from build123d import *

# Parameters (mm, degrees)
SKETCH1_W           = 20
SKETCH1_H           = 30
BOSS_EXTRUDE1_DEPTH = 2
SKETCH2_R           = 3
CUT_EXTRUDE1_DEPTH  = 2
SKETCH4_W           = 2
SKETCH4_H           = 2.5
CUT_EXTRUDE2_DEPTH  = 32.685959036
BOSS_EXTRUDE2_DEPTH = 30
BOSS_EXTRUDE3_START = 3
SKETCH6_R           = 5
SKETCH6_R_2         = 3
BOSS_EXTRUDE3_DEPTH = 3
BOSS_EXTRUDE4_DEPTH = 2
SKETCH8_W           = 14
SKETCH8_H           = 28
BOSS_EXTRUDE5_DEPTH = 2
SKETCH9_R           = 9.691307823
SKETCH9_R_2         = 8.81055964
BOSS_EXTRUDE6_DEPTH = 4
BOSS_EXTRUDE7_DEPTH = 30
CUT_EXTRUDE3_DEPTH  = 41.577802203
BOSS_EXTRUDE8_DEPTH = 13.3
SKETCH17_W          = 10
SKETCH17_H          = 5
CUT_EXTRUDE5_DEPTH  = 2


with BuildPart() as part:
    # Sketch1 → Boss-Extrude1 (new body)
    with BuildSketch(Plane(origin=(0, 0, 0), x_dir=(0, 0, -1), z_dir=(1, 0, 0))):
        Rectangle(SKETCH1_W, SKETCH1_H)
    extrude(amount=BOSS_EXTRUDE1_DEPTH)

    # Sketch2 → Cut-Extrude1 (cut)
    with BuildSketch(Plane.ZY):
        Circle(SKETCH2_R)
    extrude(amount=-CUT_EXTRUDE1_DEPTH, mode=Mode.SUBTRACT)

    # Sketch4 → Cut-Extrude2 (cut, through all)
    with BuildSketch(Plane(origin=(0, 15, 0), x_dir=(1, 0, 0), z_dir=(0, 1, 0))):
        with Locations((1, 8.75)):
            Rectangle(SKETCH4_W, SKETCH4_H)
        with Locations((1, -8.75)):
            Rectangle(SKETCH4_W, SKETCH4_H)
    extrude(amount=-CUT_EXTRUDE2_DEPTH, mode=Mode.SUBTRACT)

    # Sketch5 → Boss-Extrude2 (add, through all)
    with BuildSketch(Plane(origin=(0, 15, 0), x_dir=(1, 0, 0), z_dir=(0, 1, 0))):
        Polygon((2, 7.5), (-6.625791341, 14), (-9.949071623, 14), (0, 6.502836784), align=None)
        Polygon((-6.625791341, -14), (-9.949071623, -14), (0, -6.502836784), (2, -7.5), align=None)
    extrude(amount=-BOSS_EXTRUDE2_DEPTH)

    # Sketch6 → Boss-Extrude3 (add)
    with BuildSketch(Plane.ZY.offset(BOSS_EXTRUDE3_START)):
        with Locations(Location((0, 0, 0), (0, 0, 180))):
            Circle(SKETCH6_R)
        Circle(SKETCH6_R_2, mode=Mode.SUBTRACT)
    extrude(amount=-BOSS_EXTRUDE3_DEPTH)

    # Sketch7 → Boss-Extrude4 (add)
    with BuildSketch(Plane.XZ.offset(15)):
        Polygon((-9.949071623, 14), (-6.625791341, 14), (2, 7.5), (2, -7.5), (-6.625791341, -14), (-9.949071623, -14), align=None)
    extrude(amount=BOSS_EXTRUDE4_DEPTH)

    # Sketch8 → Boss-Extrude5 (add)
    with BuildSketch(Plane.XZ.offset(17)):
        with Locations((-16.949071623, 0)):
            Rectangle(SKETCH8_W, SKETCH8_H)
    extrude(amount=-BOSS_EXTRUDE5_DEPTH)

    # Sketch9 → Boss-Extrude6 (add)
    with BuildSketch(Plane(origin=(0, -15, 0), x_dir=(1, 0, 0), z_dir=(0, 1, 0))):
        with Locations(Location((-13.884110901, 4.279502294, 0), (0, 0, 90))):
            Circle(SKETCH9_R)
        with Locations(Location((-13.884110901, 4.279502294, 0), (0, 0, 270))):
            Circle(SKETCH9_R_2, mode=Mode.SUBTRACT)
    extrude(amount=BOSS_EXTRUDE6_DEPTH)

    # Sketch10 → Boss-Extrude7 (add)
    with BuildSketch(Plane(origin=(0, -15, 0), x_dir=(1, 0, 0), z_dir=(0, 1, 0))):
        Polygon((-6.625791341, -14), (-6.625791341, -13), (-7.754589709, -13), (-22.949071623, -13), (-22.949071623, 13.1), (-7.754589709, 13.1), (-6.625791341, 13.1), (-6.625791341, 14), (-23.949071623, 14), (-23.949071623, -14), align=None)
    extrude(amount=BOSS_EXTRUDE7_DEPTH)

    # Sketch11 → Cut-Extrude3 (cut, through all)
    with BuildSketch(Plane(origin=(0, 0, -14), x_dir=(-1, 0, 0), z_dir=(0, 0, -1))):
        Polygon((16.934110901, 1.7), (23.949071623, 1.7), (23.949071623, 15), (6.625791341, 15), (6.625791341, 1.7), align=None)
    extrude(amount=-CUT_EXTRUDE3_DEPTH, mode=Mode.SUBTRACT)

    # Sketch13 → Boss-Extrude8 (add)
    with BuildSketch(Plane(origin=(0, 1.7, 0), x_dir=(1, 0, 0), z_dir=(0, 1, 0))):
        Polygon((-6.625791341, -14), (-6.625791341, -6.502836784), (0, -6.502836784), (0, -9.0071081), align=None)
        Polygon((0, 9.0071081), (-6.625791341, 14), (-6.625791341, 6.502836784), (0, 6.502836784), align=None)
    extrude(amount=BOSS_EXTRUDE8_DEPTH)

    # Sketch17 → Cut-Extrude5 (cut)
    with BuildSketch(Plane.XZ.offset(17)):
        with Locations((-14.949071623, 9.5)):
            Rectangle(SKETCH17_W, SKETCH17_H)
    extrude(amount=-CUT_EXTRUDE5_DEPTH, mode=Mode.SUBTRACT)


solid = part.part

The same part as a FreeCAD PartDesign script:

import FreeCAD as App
import Part
import Sketcher
from FreeCAD import Vector
Q = App.Units.Quantity


def add_polygon(sketch, points):
    """Adds a closed chain of lines whose ends are joined by coincident constraints."""
    first, n = sketch.GeometryCount, len(points)
    for a, b in zip(points, points[1:] + points[:1]):
        sketch.addGeometry(Part.LineSegment(App.Vector(*a, 0), App.Vector(*b, 0)), False)
    for i in range(n):
        sketch.addConstraint(Sketcher.Constraint("Coincident", first + i, 2, first + (i + 1) % n, 1))

doc = App.newDocument("Part")
body = doc.addObject("PartDesign::Body", "Body")

sketch1 = body.newObject("Sketcher::SketchObject", "Sketch")
sketch1.AttachmentSupport = (doc.getObject("YZ_Plane"), [""])
sketch1.MapMode = "FlatFace"
add_polygon(sketch1, [(15, 10), (-15, 10), (-15, -10), (15, -10)])
sketch1.addConstraint([
    Sketcher.Constraint("Horizontal", 0),
    Sketcher.Constraint("Vertical", 1),
    Sketcher.Constraint("Horizontal", 2),
    Sketcher.Constraint("Vertical", 3),
    Sketcher.Constraint("Symmetric", 0, 2, 2, 2, -1, 1),
    Sketcher.Constraint("DistanceX", 0, 2, 0, 1, 30.0),
    Sketcher.Constraint("DistanceY", 1, 2, 1, 1, 20.0),
])
pad1 = body.newObject("PartDesign::Pad", "Pad")
pad1.Profile = sketch1
pad1.Length = 2

sketch2 = body.newObject("Sketcher::SketchObject", "Sketch001")
sketch2.AttachmentSupport = (doc.getObject("YZ_Plane"), [""])
sketch2.MapMode = "FlatFace"
sketch2.addGeometry(Part.Circle(Vector(0, 0, 0), Vector(0, 0, 1), 3), False)
sketch2.addConstraint([
    Sketcher.Constraint("Coincident", 0, 3, -1, 1),
    Sketcher.Constraint("Diameter", 0, 6.0),
])
pocket1 = body.newObject("PartDesign::Pocket", "Pocket")
pocket1.Profile = sketch2
pocket1.Length = 2
pocket1.Reversed = True

sketch3 = body.newObject("Sketcher::SketchObject", "Sketch002")
sketch3.AttachmentSupport = (doc.getObject("XZ_Plane"), [""])
sketch3.MapMode = "FlatFace"
sketch3.AttachmentOffset = App.Placement(Vector(0, 0, -15), App.Rotation())
add_polygon(sketch3, [(0, -10), (0, -7.5), (2, -7.5), (2, -10)])
add_polygon(sketch3, [(0, 7.5), (0, 10), (2, 10), (2, 7.5)])
sketch3.addConstraint([
    Sketcher.Constraint("Vertical", 0),
    Sketcher.Constraint("Horizontal", 1),
    Sketcher.Constraint("Vertical", 2),
    Sketcher.Constraint("Horizontal", 3),
    Sketcher.Constraint("Vertical", 4),
    Sketcher.Constraint("Horizontal", 5),
    Sketcher.Constraint("Vertical", 6),
    Sketcher.Constraint("Horizontal", 7),
    Sketcher.Constraint("Symmetric", 3, 2, 4, 2, -1, 1),
    Sketcher.Constraint("Symmetric", 1, 2, 6, 2, -1),
    Sketcher.Constraint("PointOnObject", 0, 2, -2),
    Sketcher.Constraint("DistanceX", 1, 1, 1, 2, 2.0),
    Sketcher.Constraint("DistanceY", 0, 1, 0, 2, 2.5),
    Sketcher.Constraint("DistanceY", 2, 2, -1, 1, 10.0),
])
pocket2 = body.newObject("PartDesign::Pocket", "Pocket001")
pocket2.Profile = sketch3
pocket2.Type = "ThroughAll"
pocket2.Reversed = True

sketch4 = body.newObject("Sketcher::SketchObject", "Sketch003")
sketch4.AttachmentSupport = (doc.getObject("XZ_Plane"), [""])
sketch4.MapMode = "FlatFace"
sketch4.AttachmentOffset = App.Placement(Vector(0, 0, -15), App.Rotation())
add_polygon(sketch4, [(2, -7.5), (-6.625791, -14), (-9.949072, -14), (0, -6.502837)])
add_polygon(sketch4, [(-9.949072, 14), (-6.625791, 14), (2, 7.5), (0, 6.502837)])
sketch4.addConstraint([
    Sketcher.Constraint("Horizontal", 1),
    Sketcher.Constraint("Horizontal", 4),
    Sketcher.Constraint("Symmetric", 2, 2, 6, 2, -1, 1),
    Sketcher.Constraint("Symmetric", 0, 2, 4, 2, -1),
    Sketcher.Constraint("Symmetric", 3, 2, 5, 2, -1),
    Sketcher.Constraint("PointOnObject", 2, 2, -2),
    Sketcher.Constraint("Parallel", 0, 2),
    Sketcher.Constraint("Parallel", 5, 7),
    Sketcher.Constraint("Angle", 0, Q("-143 deg")),
    Sketcher.Constraint("DistanceY", 0, 2, -1, 1, 14.0),
    Sketcher.Constraint("DistanceX", -1, 1, 3, 2, 2.0),
    Sketcher.Constraint("Angle", 3, Q("-26.5 deg")),
    Sketcher.Constraint("DistanceY", 3, 2, 5, 2, 15.0),
])
pad2 = body.newObject("PartDesign::Pad", "Pad001")
pad2.Profile = sketch4
pad2.Length = 30

sketch5 = body.newObject("Sketcher::SketchObject", "Sketch004")
sketch5.AttachmentSupport = (doc.getObject("YZ_Plane"), [""])
sketch5.MapMode = "FlatFace"
sketch5.AttachmentOffset = App.Placement(Vector(0, 0, -3), App.Rotation())
sketch5.addGeometry([
    Part.Circle(Vector(0, 0, 0), Vector(0, 0, 1), 5),
    Part.Circle(Vector(0, 0, 0), Vector(0, 0, 1), 3),
], False)
sketch5.addConstraint([
    Sketcher.Constraint("Coincident", 0, 3, -1, 1),
    Sketcher.Constraint("Coincident", 1, 3, -1, 1),
    Sketcher.Constraint("Diameter", 0, 10.0),
    Sketcher.Constraint("Diameter", 1, 6.0),
])
pad3 = body.newObject("PartDesign::Pad", "Pad002")
pad3.Profile = sketch5
pad3.Length = 3

sketch6 = body.newObject("Sketcher::SketchObject", "Sketch005")
sketch6.AttachmentSupport = (doc.getObject("XZ_Plane"), [""])
sketch6.MapMode = "FlatFace"
sketch6.AttachmentOffset = App.Placement(Vector(0, 0, 15), App.Rotation())
add_polygon(sketch6, [(-6.625791, 14), (-9.949072, 14), (-9.949072, -14), (-6.625791, -14), (2, -7.5), (2, 7.5)])
sketch6.addConstraint([
    Sketcher.Constraint("Horizontal", 0),
    Sketcher.Constraint("Vertical", 1),
    Sketcher.Constraint("Horizontal", 2),
    Sketcher.Constraint("Vertical", 4),
    Sketcher.Constraint("Symmetric", 2, 2, 5, 2, -1),
    Sketcher.Constraint("Equal", 3, 5),
    Sketcher.Constraint("DistanceY", 1, 2, 1, 1, 28.0),
    Sketcher.Constraint("DistanceY", 4, 1, 4, 2, 15.0),
    Sketcher.Constraint("Angle", 3, Q("37 deg")),
    Sketcher.Constraint("DistanceX", -1, 1, 3, 2, 2.0),
    Sketcher.Constraint("DistanceX", 0, 2, 0, 1, 3.32328),
])
pad4 = body.newObject("PartDesign::Pad", "Pad003")
pad4.Profile = sketch6
pad4.Length = 2

sketch7 = body.newObject("Sketcher::SketchObject", "Sketch006")
sketch7.AttachmentSupport = (doc.getObject("XZ_Plane"), [""])
sketch7.MapMode = "FlatFace"
sketch7.AttachmentOffset = App.Placement(Vector(0, 0, 17), App.Rotation())
add_polygon(sketch7, [(-23.949072, 14), (-23.949072, -14), (-9.949072, -14), (-9.949072, 14)])
sketch7.addConstraint([
    Sketcher.Constraint("Vertical", 0),
    Sketcher.Constraint("Horizontal", 1),
    Sketcher.Constraint("Vertical", 2),
    Sketcher.Constraint("Horizontal", 3),
    Sketcher.Constraint("DistanceX", 1, 1, 1, 2, 14.0),
    Sketcher.Constraint("DistanceY", 0, 2, 0, 1, 28.0),
    Sketcher.Constraint("DistanceY", 0, 2, -1, 1, 14.0),
    Sketcher.Constraint("DistanceX", 0, 2, -1, 1, 23.949072),
])
pad5 = body.newObject("PartDesign::Pad", "Pad004")
pad5.Profile = sketch7
pad5.Length = 2
pad5.Reversed = True

sketch8 = body.newObject("Sketcher::SketchObject", "Sketch007")
sketch8.AttachmentSupport = (doc.getObject("XZ_Plane"), [""])
sketch8.MapMode = "FlatFace"
sketch8.AttachmentOffset = App.Placement(Vector(0, 0, 15), App.Rotation())
sketch8.addGeometry([
    Part.Circle(Vector(-13.884111, -4.279502, 0), Vector(0, 0, 1), 9.691308),
    Part.Circle(Vector(-13.884111, -4.279502, 0), Vector(0, 0, 1), 8.81056),
], False)
sketch8.addConstraint([
    Sketcher.Constraint("Coincident", 1, 3, 0, 3),
    Sketcher.Constraint("Diameter", 1, 17.621119),
    Sketcher.Constraint("Diameter", 0, 19.382616),
    Sketcher.Constraint("DistanceX", 0, 3, -1, 1, 13.884111),
    Sketcher.Constraint("DistanceY", 0, 3, -1, 1, 4.279502),
])
pad6 = body.newObject("PartDesign::Pad", "Pad005")
pad6.Profile = sketch8
pad6.Length = 4
pad6.Reversed = True

sketch9 = body.newObject("Sketcher::SketchObject", "Sketch008")
sketch9.AttachmentSupport = (doc.getObject("XZ_Plane"), [""])
sketch9.MapMode = "FlatFace"
sketch9.AttachmentOffset = App.Placement(Vector(0, 0, 15), App.Rotation())
add_polygon(sketch9, [(-6.625791, 14), (-6.625791, 13), (-22.949072, 13), (-22.949072, -13.1), (-6.625791, -13.1), (-6.625791, -14), (-23.949072, -14), (-23.949072, 14)])
sketch9.addConstraint([
    Sketcher.Constraint("Vertical", 0),
    Sketcher.Constraint("Horizontal", 1),
    Sketcher.Constraint("Vertical", 2),
    Sketcher.Constraint("Horizontal", 3),
    Sketcher.Constraint("Vertical", 4),
    Sketcher.Constraint("Horizontal", 5),
    Sketcher.Constraint("Vertical", 6),
    Sketcher.Constraint("Horizontal", 7),
    Sketcher.Constraint("Symmetric", 4, 2, 7, 2, -1),
    Sketcher.Constraint("DistanceY", 0, 2, 0, 1, 1.0),
    Sketcher.Constraint("DistanceY", 6, 1, 6, 2, 28.0),
    Sketcher.Constraint("DistanceY", 2, 2, 2, 1, 26.1),
    Sketcher.Constraint("DistanceX", 5, 2, 2, 2, 1.0),
    Sketcher.Constraint("DistanceX", 1, 2, 1, 1, 16.32328),
    Sketcher.Constraint("DistanceX", 0, 2, -1, 1, 6.625791),
])
pad7 = body.newObject("PartDesign::Pad", "Pad006")
pad7.Profile = sketch9
pad7.Length = 30
pad7.Reversed = True

sketch10 = body.newObject("Sketcher::SketchObject", "Sketch009")
sketch10.AttachmentSupport = (doc.getObject("XY_Plane"), [""])
sketch10.MapMode = "FlatFace"
sketch10.AttachmentOffset = App.Placement(Vector(0, 0, -14), App.Rotation())
add_polygon(sketch10, [(-23.949072, 1.7), (-23.949072, 15), (-6.625791, 15), (-6.625791, 1.7)])
sketch10.addConstraint([
    Sketcher.Constraint("Vertical", 0),
    Sketcher.Constraint("Horizontal", 1),
    Sketcher.Constraint("Vertical", 2),
    Sketcher.Constraint("Horizontal", 3),
    Sketcher.Constraint("DistanceY", 0, 1, 0, 2, 13.3),
    Sketcher.Constraint("DistanceY", -1, 1, 0, 2, 15.0),
    Sketcher.Constraint("DistanceX", 1, 1, 1, 2, 17.32328),
    Sketcher.Constraint("DistanceX", 0, 2, -1, 1, 23.949072),
])
pocket3 = body.newObject("PartDesign::Pocket", "Pocket002")
pocket3.Profile = sketch10
pocket3.Type = "ThroughAll"
pocket3.Reversed = True

sketch11 = body.newObject("Sketcher::SketchObject", "Sketch010")
sketch11.AttachmentSupport = (doc.getObject("XZ_Plane"), [""])
sketch11.MapMode = "FlatFace"
sketch11.AttachmentOffset = App.Placement(Vector(0, 0, -1.7), App.Rotation())
add_polygon(sketch11, [(-6.625791, 6.502837), (-6.625791, 14), (0, 9.007108), (0, 6.502837)])
add_polygon(sketch11, [(0, -9.007108), (-6.625791, -14), (-6.625791, -6.502837), (0, -6.502837)])
sketch11.addConstraint([
    Sketcher.Constraint("Vertical", 0),
    Sketcher.Constraint("Vertical", 2),
    Sketcher.Constraint("Horizontal", 3),
    Sketcher.Constraint("Vertical", 5),
    Sketcher.Constraint("Horizontal", 6),
    Sketcher.Constraint("Vertical", 7),
    Sketcher.Constraint("Symmetric", 2, 2, 6, 2, -1, 1),
    Sketcher.Constraint("Symmetric", 0, 2, 4, 2, -1),
    Sketcher.Constraint("Symmetric", 1, 2, 7, 2, -1),
    Sketcher.Constraint("Angle", 1, Q("-37 deg")),
    Sketcher.Constraint("DistanceY", -1, 1, 0, 2, 14.0),
    Sketcher.Constraint("DistanceX", 3, 2, 3, 1, 6.625791),
    Sketcher.Constraint("DistanceY", 2, 2, 2, 1, 2.504271),
])
pad8 = body.newObject("PartDesign::Pad", "Pad007")
pad8.Profile = sketch11
pad8.Length = 13.3
pad8.Reversed = True

sketch12 = body.newObject("Sketcher::SketchObject", "Sketch011")
sketch12.AttachmentSupport = (doc.getObject("XZ_Plane"), [""])
sketch12.MapMode = "FlatFace"
sketch12.AttachmentOffset = App.Placement(Vector(0, 0, 17), App.Rotation())
add_polygon(sketch12, [(-19.949072, 12), (-19.949072, 7), (-9.949072, 7), (-9.949072, 12)])
sketch12.addConstraint([
    Sketcher.Constraint("Vertical", 0),
    Sketcher.Constraint("Horizontal", 1),
    Sketcher.Constraint("Vertical", 2),
    Sketcher.Constraint("Horizontal", 3),
    Sketcher.Constraint("DistanceX", 1, 1, 1, 2, 10.0),
    Sketcher.Constraint("DistanceY", 0, 2, 0, 1, 5.0),
    Sketcher.Constraint("DistanceY", -1, 1, 0, 2, 7.0),
    Sketcher.Constraint("DistanceX", 0, 2, -1, 1, 19.949072),
])
pocket4 = body.newObject("PartDesign::Pocket", "Pocket003")
pocket4.Profile = sketch12
pocket4.Length = 2

doc.recompute()
